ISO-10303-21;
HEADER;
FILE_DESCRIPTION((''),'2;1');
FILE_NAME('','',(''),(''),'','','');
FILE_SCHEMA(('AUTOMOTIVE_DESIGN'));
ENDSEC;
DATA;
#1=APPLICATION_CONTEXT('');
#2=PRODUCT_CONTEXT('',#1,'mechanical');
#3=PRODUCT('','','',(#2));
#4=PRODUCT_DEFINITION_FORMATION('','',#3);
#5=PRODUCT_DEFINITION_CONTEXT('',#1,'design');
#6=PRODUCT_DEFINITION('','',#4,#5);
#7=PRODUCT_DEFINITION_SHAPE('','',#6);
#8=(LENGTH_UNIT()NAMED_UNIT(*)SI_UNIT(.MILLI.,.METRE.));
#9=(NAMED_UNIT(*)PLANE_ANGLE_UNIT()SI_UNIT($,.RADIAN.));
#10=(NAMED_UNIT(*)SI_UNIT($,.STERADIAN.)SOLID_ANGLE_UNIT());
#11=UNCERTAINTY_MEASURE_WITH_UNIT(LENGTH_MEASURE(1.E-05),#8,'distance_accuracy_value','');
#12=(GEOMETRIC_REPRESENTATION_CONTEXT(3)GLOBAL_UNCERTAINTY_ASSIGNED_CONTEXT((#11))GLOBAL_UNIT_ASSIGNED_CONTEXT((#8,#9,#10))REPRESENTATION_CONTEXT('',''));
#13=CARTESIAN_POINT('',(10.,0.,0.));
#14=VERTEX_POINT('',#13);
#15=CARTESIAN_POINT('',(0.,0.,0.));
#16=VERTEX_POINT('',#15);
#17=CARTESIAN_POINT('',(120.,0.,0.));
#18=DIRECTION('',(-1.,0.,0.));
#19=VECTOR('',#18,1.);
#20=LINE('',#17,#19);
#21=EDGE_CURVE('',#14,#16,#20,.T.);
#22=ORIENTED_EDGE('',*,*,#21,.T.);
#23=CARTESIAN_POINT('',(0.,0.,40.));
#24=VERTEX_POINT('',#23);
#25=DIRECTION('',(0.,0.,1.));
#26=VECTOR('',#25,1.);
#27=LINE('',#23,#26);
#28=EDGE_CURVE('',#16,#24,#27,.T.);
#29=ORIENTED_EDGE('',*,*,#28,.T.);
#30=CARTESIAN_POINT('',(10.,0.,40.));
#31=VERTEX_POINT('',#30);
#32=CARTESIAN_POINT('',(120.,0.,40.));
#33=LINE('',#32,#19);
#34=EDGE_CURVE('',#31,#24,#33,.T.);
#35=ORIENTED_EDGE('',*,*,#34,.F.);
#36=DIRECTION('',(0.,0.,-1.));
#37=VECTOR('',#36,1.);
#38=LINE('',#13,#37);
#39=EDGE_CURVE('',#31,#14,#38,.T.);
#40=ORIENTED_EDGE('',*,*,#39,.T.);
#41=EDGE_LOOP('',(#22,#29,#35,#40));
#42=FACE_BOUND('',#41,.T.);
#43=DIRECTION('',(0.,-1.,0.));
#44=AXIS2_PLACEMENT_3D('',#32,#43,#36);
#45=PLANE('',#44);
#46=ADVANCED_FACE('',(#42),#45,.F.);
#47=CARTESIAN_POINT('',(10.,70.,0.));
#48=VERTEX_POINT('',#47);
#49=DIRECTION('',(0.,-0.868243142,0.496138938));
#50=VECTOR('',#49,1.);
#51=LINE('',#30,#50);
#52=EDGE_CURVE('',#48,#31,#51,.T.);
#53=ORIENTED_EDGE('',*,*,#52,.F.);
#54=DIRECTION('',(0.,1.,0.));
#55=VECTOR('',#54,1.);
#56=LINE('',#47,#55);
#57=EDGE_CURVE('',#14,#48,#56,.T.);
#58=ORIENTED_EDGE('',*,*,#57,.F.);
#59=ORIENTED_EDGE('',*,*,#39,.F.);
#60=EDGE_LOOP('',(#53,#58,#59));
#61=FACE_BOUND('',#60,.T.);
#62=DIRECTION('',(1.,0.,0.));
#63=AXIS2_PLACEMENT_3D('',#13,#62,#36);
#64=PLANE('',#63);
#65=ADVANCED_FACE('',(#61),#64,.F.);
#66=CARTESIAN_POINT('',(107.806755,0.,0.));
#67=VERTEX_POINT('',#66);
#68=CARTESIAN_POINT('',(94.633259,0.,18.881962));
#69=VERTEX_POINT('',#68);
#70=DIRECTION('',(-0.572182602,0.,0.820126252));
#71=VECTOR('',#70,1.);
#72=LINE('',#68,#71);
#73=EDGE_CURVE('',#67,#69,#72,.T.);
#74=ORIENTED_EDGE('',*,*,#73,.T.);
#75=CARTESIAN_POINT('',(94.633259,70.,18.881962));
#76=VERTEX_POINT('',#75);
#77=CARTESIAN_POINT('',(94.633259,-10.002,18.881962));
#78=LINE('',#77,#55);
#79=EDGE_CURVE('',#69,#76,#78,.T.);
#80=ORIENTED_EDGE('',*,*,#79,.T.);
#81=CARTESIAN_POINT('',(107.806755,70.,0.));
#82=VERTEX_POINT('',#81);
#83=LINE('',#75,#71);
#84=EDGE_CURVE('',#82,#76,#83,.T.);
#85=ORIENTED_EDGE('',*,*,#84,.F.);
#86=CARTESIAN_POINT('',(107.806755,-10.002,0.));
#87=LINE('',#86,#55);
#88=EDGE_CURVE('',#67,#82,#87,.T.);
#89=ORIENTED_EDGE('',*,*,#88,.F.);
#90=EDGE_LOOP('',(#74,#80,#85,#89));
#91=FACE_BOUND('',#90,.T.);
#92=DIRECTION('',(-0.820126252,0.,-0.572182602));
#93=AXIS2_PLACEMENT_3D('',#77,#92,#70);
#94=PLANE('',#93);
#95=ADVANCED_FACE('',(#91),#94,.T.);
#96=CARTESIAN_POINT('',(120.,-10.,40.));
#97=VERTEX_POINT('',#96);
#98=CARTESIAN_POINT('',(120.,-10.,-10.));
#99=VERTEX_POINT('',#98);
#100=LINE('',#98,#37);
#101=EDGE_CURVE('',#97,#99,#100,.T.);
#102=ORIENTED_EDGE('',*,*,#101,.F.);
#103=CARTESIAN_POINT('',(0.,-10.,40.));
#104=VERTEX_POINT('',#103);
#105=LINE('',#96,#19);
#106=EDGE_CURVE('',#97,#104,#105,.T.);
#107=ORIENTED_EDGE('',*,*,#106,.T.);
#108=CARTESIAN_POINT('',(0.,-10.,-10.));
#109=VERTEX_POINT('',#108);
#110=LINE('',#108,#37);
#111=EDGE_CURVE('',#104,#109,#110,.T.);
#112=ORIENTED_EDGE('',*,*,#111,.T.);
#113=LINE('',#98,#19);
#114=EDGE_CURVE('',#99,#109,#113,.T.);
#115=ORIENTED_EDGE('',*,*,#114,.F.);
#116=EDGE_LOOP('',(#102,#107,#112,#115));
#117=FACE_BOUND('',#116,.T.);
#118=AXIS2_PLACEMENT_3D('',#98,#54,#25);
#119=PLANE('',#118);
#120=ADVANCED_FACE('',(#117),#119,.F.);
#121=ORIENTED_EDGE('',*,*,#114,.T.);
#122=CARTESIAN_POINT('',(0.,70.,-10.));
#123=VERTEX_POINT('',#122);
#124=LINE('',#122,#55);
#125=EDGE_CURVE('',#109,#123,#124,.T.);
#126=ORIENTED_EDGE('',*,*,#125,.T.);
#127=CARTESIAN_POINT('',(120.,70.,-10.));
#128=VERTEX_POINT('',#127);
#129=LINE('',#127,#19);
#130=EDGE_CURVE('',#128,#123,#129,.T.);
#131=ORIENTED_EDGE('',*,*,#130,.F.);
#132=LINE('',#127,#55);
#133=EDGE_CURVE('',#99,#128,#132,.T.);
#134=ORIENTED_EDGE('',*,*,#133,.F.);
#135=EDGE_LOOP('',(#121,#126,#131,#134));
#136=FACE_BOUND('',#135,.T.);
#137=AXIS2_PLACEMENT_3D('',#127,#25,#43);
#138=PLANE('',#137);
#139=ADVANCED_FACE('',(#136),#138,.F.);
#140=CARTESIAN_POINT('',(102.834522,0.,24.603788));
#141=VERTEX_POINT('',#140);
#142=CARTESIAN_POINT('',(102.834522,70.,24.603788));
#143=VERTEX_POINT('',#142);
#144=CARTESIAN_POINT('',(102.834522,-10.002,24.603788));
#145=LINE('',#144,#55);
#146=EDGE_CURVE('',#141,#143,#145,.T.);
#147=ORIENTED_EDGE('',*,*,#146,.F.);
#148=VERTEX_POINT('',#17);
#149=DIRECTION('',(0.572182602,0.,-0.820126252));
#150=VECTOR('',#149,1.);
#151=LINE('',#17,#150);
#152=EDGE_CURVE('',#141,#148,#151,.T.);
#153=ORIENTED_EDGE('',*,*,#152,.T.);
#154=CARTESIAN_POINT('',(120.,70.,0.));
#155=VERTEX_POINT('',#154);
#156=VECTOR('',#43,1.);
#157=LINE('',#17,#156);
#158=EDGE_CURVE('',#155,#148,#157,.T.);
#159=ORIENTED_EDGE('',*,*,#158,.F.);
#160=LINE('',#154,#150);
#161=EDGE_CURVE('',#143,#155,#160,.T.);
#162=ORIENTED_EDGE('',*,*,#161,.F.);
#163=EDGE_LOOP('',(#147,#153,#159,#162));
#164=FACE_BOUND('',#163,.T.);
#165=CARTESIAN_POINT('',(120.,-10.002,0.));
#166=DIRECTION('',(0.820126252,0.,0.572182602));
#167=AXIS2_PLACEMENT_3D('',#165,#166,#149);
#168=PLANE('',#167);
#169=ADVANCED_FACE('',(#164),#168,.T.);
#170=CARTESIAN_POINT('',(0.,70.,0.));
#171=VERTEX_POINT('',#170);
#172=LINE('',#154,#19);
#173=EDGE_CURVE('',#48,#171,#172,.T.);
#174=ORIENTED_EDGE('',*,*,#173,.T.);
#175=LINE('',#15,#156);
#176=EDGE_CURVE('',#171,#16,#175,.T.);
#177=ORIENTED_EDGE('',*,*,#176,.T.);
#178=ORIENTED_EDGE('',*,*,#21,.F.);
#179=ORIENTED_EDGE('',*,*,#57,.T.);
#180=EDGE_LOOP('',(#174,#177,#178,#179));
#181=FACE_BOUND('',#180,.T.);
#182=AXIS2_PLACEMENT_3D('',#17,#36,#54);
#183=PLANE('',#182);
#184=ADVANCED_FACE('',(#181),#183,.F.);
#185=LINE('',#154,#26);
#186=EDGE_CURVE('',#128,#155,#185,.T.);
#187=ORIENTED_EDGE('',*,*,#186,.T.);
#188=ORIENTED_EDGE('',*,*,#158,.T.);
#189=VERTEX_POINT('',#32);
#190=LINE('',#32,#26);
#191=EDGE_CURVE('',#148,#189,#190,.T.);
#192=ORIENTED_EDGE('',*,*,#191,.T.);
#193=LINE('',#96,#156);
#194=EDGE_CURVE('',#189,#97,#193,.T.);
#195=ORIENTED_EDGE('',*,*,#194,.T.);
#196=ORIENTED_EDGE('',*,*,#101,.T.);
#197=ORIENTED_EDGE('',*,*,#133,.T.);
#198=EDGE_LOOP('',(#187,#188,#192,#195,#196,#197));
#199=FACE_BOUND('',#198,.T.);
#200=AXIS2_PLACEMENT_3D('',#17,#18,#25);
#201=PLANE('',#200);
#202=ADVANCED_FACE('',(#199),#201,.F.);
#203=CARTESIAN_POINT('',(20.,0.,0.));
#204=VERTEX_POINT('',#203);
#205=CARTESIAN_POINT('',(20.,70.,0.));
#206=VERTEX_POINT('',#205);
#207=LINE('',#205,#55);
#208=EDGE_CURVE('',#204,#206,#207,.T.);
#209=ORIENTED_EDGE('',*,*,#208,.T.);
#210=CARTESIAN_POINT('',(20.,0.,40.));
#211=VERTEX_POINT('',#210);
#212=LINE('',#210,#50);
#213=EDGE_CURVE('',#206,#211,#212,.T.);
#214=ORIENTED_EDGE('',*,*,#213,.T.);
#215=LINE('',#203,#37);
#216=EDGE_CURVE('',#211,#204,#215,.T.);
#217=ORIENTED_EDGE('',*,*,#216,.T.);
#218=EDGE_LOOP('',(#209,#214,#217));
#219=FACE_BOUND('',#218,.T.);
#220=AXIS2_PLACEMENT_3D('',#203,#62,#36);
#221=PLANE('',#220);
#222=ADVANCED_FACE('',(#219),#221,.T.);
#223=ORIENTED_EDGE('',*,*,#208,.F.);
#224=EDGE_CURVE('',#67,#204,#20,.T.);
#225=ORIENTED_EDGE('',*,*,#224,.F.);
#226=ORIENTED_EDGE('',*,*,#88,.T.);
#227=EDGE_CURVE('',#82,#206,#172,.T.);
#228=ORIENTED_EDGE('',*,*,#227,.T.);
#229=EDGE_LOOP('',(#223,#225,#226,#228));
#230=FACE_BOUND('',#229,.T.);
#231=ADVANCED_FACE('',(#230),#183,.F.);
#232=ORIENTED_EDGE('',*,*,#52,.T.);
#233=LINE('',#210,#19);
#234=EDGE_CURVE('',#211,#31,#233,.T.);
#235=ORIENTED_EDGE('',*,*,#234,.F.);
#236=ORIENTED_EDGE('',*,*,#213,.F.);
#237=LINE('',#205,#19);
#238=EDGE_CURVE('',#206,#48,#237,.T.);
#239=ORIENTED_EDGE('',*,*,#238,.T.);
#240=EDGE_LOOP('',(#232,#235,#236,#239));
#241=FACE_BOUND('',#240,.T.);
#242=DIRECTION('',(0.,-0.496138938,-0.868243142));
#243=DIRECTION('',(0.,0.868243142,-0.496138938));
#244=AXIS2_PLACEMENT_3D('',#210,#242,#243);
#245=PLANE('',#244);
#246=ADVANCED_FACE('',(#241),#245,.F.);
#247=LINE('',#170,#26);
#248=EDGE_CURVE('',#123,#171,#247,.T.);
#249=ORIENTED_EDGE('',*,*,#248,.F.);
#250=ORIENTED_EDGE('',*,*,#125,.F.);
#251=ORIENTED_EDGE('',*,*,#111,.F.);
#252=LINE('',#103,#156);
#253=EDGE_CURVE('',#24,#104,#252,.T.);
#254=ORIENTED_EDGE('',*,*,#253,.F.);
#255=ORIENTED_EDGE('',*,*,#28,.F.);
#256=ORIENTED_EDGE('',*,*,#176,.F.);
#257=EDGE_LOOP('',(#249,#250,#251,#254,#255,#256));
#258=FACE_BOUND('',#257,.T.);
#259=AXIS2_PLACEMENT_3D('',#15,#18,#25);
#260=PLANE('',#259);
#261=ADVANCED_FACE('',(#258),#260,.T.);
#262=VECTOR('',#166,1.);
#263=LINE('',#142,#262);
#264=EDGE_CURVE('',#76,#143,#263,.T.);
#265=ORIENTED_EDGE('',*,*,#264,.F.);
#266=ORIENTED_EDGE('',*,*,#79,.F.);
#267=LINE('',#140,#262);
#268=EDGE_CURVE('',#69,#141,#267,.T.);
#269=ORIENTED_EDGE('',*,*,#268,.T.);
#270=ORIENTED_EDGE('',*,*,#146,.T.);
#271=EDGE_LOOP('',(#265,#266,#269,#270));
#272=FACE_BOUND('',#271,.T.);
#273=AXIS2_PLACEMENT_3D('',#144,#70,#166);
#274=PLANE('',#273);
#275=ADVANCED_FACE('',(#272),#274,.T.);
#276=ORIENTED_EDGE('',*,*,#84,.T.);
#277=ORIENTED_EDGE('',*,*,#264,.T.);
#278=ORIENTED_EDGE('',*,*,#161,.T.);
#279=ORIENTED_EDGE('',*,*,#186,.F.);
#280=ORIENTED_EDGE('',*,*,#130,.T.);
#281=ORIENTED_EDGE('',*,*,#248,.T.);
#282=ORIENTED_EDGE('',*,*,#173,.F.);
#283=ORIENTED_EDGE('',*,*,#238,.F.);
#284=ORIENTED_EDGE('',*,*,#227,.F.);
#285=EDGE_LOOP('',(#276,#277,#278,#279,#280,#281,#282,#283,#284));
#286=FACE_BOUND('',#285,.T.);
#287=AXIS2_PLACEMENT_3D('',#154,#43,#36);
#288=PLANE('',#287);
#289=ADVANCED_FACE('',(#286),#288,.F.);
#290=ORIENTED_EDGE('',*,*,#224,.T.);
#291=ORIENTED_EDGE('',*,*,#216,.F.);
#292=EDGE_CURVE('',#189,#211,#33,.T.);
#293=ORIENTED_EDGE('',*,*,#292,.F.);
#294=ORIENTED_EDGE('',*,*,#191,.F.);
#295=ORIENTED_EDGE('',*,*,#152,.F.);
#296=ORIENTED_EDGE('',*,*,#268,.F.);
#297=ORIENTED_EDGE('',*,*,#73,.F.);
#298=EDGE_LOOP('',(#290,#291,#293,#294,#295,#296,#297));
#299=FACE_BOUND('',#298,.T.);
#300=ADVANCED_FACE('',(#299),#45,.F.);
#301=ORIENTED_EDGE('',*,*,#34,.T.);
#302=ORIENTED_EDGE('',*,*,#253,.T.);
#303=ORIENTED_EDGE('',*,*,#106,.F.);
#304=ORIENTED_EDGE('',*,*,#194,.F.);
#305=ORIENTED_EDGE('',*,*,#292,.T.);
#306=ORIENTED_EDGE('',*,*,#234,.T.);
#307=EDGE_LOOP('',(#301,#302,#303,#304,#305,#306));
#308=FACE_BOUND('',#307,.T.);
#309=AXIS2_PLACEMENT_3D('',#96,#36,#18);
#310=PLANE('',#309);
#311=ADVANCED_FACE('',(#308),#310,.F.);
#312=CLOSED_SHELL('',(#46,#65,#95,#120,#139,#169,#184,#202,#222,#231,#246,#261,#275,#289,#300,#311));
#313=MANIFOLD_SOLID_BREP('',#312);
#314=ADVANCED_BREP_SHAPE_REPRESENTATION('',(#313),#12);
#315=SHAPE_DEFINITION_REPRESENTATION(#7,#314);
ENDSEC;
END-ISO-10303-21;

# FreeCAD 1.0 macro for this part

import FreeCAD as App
import Part
import Sketcher
Q = App.Units.Quantity


def add_polygon(sketch, points):
    """Adds a closed chain of lines whose ends are joined by coincident constraints."""
    first, n = sketch.GeometryCount, len(points)
    for a, b in zip(points, points[1:] + points[:1]):
        sketch.addGeometry(Part.LineSegment(App.Vector(*a, 0), App.Vector(*b, 0)), False)
    for i in range(n):
        sketch.addConstraint(Sketcher.Constraint("Coincident", first + i, 2, first + (i + 1) % n, 1))

doc = App.newDocument("Part")
params = doc.addObject("Spreadsheet::Sheet", "Params")
for row, (alias, value) in enumerate([
    ("sketch1_width", "10 mm"),
    ("sketch1_width2", "80 mm"),
    ("sketch1_height", "40 mm"),
    ("pad1_length", "120 mm"),
    ("sketch2_length", "30 mm"),
    ("sketch2_length2", "10 mm"),
    ("sketch3_width", "70 mm"),
    ("sketch3_height", "40 mm"),
    ("pad3_length", "10 mm"),
], start=1):
    params.set(f"A{row}", alias)
    params.set(f"B{row}", "=" + value)
    params.setAlias(f"B{row}", alias)

body = doc.addObject("PartDesign::Body", "Body")

# Sketch on YZ plane
sketch1 = body.newObject("Sketcher::SketchObject", "Sketch")
sketch1.AttachmentSupport = (doc.getObject("YZ_Plane"), [""])
sketch1.MapMode = "FlatFace"
add_polygon(sketch1, [(0, 0), (0, 40), (-10, 40), (-10, -10), (70, -10), (70, 0)])  # lines 0-5
sketch1.addConstraint([
    Sketcher.Constraint("Vertical", 0),
    Sketcher.Constraint("Horizontal", 1),
    Sketcher.Constraint("Vertical", 2),
    Sketcher.Constraint("Horizontal", 3),
    Sketcher.Constraint("Vertical", 4),
    Sketcher.Constraint("Horizontal", 5),
    Sketcher.Constraint("Coincident", 5, 2, -1, 1),
    Sketcher.Constraint("Equal", 1, 4),
    Sketcher.Constraint("DistanceX", 1, 2, 1, 1, Q("10 mm")),
    Sketcher.Constraint("DistanceX", 3, 1, 3, 2, Q("80 mm")),
    Sketcher.Constraint("DistanceY", 0, 1, 0, 2, Q("40 mm")),
])
sketch1.setExpression("Constraints[14]", "Params.sketch1_width")
sketch1.setExpression("Constraints[15]", "Params.sketch1_width2")
sketch1.setExpression("Constraints[16]", "Params.sketch1_height")
pad1 = body.newObject("PartDesign::Pad", "Pad")
pad1.Profile = sketch1
pad1.setExpression("Length", "Params.pad1_length")

# Sketch on XZ plane
sketch2 = body.newObject("Sketcher::SketchObject", "Sketch001")
sketch2.AttachmentSupport = (doc.getObject("XZ_Plane"), [""])
sketch2.MapMode = "FlatFace"
sketch2.AttachmentOffset = App.Placement(App.Vector(0, 0, -70), App.Rotation())
add_polygon(sketch2, [(103, 25), (120, 0), (108, 0), (95, 19)])  # lines 0-3
sketch2.addConstraint([
    Sketcher.Constraint("Horizontal", 1),
    Sketcher.Constraint("PointOnObject", 0, 2, -1),
    Sketcher.Constraint("Parallel", 0, 2),
    Sketcher.Constraint("Perpendicular", 2, 3),
    Sketcher.Constraint("Distance", 0, Q("30 mm")),
    Sketcher.Constraint("Distance", 3, Q("10 mm")),
    Sketcher.Constraint("DistanceX", -1, 1, 0, 2, Q("120 mm")),
    Sketcher.Constraint("DistanceX", 1, 2, 1, 1, Q("12.193245 mm")),
])
sketch2.setExpression("Constraints[8]", "Params.sketch2_length")
sketch2.setExpression("Constraints[9]", "Params.sketch2_length2")
pad2 = body.newObject("PartDesign::Pad", "Pad001")
pad2.Profile = sketch2
pad2.Type = "UpToFirst"

# Sketch on YZ plane
sketch3 = body.newObject("Sketcher::SketchObject", "Sketch002")
sketch3.AttachmentSupport = (doc.getObject("YZ_Plane"), [""])
sketch3.MapMode = "FlatFace"
sketch3.AttachmentOffset = App.Placement(App.Vector(0, 0, 10), App.Rotation())
add_polygon(sketch3, [(0, 0), (70, 0), (0, 40)])  # lines 0-2
sketch3.addConstraint([
    Sketcher.Constraint("Horizontal", 0),
    Sketcher.Constraint("Vertical", 2),
    Sketcher.Constraint("Coincident", 2, 2, -1, 1),
    Sketcher.Constraint("DistanceX", 0, 1, 0, 2, Q("70 mm")),
    Sketcher.Constraint("DistanceY", 2, 2, 2, 1, Q("40 mm")),
])
sketch3.setExpression("Constraints[6]", "Params.sketch3_width")
sketch3.setExpression("Constraints[7]", "Params.sketch3_height")
pad3 = body.newObject("PartDesign::Pad", "Pad002")
pad3.Profile = sketch3
pad3.setExpression("Length", "Params.pad3_length")

doc.recompute()
